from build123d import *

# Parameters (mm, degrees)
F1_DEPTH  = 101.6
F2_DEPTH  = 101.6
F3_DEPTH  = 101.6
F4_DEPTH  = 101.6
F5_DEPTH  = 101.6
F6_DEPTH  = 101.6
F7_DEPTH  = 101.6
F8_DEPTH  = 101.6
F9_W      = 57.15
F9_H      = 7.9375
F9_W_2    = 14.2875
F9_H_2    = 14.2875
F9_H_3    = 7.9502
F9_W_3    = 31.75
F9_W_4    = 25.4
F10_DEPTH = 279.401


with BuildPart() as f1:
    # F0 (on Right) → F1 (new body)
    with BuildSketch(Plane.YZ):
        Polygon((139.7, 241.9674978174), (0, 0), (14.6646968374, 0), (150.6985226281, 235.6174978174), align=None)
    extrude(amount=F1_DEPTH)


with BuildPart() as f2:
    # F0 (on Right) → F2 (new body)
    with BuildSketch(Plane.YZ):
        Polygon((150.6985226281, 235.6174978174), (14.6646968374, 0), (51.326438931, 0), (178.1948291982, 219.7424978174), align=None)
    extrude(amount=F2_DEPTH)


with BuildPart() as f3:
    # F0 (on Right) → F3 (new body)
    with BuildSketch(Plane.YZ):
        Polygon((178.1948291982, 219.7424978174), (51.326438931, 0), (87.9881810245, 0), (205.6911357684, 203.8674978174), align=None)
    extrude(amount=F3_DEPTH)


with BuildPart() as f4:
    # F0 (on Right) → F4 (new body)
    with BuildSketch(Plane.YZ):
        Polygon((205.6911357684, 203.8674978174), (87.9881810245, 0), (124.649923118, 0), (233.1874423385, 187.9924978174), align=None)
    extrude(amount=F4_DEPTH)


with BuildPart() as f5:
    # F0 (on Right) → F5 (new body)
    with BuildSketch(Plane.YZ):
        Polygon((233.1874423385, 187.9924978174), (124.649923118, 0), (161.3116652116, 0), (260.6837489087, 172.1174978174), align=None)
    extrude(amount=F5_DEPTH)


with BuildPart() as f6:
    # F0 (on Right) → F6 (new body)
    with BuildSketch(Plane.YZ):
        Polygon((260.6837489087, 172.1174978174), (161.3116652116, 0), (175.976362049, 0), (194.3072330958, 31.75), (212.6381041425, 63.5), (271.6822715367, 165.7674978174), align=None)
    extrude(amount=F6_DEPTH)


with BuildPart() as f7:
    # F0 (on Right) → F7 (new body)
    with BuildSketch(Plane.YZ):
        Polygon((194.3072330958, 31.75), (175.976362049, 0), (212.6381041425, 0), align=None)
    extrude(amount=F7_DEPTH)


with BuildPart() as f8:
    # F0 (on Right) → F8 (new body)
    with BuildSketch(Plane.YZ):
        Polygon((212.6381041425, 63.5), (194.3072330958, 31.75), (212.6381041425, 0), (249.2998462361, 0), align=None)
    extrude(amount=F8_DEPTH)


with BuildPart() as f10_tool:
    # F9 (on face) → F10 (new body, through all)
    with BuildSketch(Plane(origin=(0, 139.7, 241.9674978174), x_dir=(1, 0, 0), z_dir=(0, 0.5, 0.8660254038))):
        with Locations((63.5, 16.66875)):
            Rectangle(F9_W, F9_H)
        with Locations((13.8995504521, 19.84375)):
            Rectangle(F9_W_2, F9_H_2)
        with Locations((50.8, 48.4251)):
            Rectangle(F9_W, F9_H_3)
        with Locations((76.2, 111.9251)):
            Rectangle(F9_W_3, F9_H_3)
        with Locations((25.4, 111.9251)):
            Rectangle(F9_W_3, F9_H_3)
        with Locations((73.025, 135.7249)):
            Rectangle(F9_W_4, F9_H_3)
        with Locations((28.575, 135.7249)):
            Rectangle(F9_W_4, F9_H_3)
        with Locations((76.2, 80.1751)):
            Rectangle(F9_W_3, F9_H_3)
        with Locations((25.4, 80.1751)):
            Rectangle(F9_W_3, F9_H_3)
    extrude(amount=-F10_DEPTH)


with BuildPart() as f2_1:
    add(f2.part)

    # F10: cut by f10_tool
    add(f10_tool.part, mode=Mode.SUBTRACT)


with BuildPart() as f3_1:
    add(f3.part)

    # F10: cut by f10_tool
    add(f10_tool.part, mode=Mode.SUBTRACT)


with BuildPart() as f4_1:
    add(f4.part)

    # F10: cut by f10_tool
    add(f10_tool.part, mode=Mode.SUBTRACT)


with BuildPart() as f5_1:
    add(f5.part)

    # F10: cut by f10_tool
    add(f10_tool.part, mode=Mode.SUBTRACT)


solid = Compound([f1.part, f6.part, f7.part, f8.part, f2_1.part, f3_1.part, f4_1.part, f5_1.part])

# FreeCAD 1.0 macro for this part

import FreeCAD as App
import Part
import Sketcher
from FreeCAD import Vector
Q = App.Units.Quantity

doc = App.newDocument("Part")
body = doc.addObject("PartDesign::Body", "Body")

# Sketch on YZ plane
sketch1 = body.newObject("Sketcher::SketchObject", "Sketch")
sketch1.AttachmentSupport = (doc.getObject("YZ_Plane"), [""])
sketch1.MapMode = "FlatFace"
sketch1.addGeometry([
    Part.LineSegment(Vector(140, 242, 0), Vector(0, 0, 0)),
    Part.LineSegment(Vector(0, 0, 0), Vector(15, 0, 0)),
    Part.LineSegment(Vector(15, 0, 0), Vector(151, 236, 0)),
    Part.LineSegment(Vector(151, 236, 0), Vector(140, 242, 0)),
], False)
sketch1.addConstraint([
    Sketcher.Constraint("Coincident", 0, 2, 1, 1),
    Sketcher.Constraint("Coincident", 1, 2, 2, 1),
    Sketcher.Constraint("Coincident", 2, 2, 3, 1),
    Sketcher.Constraint("Coincident", 3, 2, 0, 1),
    Sketcher.Constraint("Horizontal", 1),
    Sketcher.Constraint("Coincident", 0, 2, -1, 1),
    Sketcher.Constraint("Parallel", 0, 2),
    Sketcher.Constraint("Perpendicular", 2, 3),
    Sketcher.Constraint("Distance", 0, Q("11 in")),
    Sketcher.Constraint("Angle", 0, Q("-120 deg")),
    Sketcher.Constraint("Distance", 3, Q("0.5 in")),
])
pad1 = body.newObject("PartDesign::Pad", "Pad")
pad1.Profile = sketch1
pad1.Length = Q("4 in")
body2 = doc.addObject("PartDesign::Body", "Body001")

# Sketch on YZ plane
sketch2 = body2.newObject("Sketcher::SketchObject", "Sketch001")
sketch2.AttachmentSupport = (doc.getObject("YZ_Plane001"), [""])
sketch2.MapMode = "FlatFace"
sketch2.addGeometry([
    Part.LineSegment(Vector(151, 236, 0), Vector(15, 0, 0)),
    Part.LineSegment(Vector(15, 0, 0), Vector(51, 0, 0)),
    Part.LineSegment(Vector(51, 0, 0), Vector(178, 220, 0)),
    Part.LineSegment(Vector(178, 220, 0), Vector(151, 236, 0)),
], False)
sketch2.addConstraint([
    Sketcher.Constraint("Coincident", 0, 2, 1, 1),
    Sketcher.Constraint("Coincident", 1, 2, 2, 1),
    Sketcher.Constraint("Coincident", 2, 2, 3, 1),
    Sketcher.Constraint("Coincident", 3, 2, 0, 1),
    Sketcher.Constraint("Horizontal", 1),
    Sketcher.Constraint("PointOnObject", 0, 2, -1),
    Sketcher.Constraint("Parallel", 0, 2),
    Sketcher.Constraint("Perpendicular", 2, 3),
    Sketcher.Constraint("Angle", 0, Q("-120 deg")),
    Sketcher.Constraint("Distance", 3, Q("1.25 in")),
    Sketcher.Constraint("Distance", 0, Q("272.067652 mm")),
    Sketcher.Constraint("DistanceX", -1, 1, 1, 2, Q("51.326439 mm")),
])
pad2 = body2.newObject("PartDesign::Pad", "Pad001")
pad2.Profile = sketch2
pad2.Length = Q("4 in")
body3 = doc.addObject("PartDesign::Body", "Body002")

# Sketch on YZ plane
sketch3 = body3.newObject("Sketcher::SketchObject", "Sketch002")
sketch3.AttachmentSupport = (doc.getObject("YZ_Plane002"), [""])
sketch3.MapMode = "FlatFace"
sketch3.addGeometry([
    Part.LineSegment(Vector(178, 220, 0), Vector(51, 0, 0)),
    Part.LineSegment(Vector(51, 0, 0), Vector(88, 0, 0)),
    Part.LineSegment(Vector(88, 0, 0), Vector(206, 204, 0)),
    Part.LineSegment(Vector(206, 204, 0), Vector(178, 220, 0)),
], False)
sketch3.addConstraint([
    Sketcher.Constraint("Coincident", 0, 2, 1, 1),
    Sketcher.Constraint("Coincident", 1, 2, 2, 1),
    Sketcher.Constraint("Coincident", 2, 2, 3, 1),
    Sketcher.Constraint("Coincident", 3, 2, 0, 1),
    Sketcher.Constraint("Horizontal", 1),
    Sketcher.Constraint("PointOnObject", 0, 2, -1),
    Sketcher.Constraint("Parallel", 0, 2),
    Sketcher.Constraint("Perpendicular", 2, 3),
    Sketcher.Constraint("Angle", 0, Q("-120 deg")),
    Sketcher.Constraint("Distance", 3, Q("1.25 in")),
    Sketcher.Constraint("Distance", 0, Q("253.736781 mm")),
    Sketcher.Constraint("DistanceX", -1, 1, 0, 2, Q("51.326439 mm")),
])
pad3 = body3.newObject("PartDesign::Pad", "Pad002")
pad3.Profile = sketch3
pad3.Length = Q("4 in")
body4 = doc.addObject("PartDesign::Body", "Body003")

# Sketch on YZ plane
sketch4 = body4.newObject("Sketcher::SketchObject", "Sketch003")
sketch4.AttachmentSupport = (doc.getObject("YZ_Plane003"), [""])
sketch4.MapMode = "FlatFace"
sketch4.addGeometry([
    Part.LineSegment(Vector(206, 204, 0), Vector(88, 0, 0)),
    Part.LineSegment(Vector(88, 0, 0), Vector(125, 0, 0)),
    Part.LineSegment(Vector(125, 0, 0), Vector(233, 188, 0)),
    Part.LineSegment(Vector(233, 188, 0), Vector(206, 204, 0)),
], False)
sketch4.addConstraint([
    Sketcher.Constraint("Coincident", 0, 2, 1, 1),
    Sketcher.Constraint("Coincident", 1, 2, 2, 1),
    Sketcher.Constraint("Coincident", 2, 2, 3, 1),
    Sketcher.Constraint("Coincident", 3, 2, 0, 1),
    Sketcher.Constraint("Horizontal", 1),
    Sketcher.Constraint("PointOnObject", 0, 2, -1),
    Sketcher.Constraint("Parallel", 0, 2),
    Sketcher.Constraint("Perpendicular", 2, 3),
    Sketcher.Constraint("Angle", 0, Q("-120 deg")),
    Sketcher.Constraint("Distance", 3, Q("1.25 in")),
    Sketcher.Constraint("Distance", 0, Q("235.405909 mm")),
    Sketcher.Constraint("DistanceX", -1, 1, 0, 2, Q("87.988181 mm")),
])
pad4 = body4.newObject("PartDesign::Pad", "Pad003")
pad4.Profile = sketch4
pad4.Length = Q("4 in")
body5 = doc.addObject("PartDesign::Body", "Body004")

# Sketch on YZ plane
sketch5 = body5.newObject("Sketcher::SketchObject", "Sketch004")
sketch5.AttachmentSupport = (doc.getObject("YZ_Plane004"), [""])
sketch5.MapMode = "FlatFace"
sketch5.addGeometry([
    Part.LineSegment(Vector(233, 188, 0), Vector(125, 0, 0)),
    Part.LineSegment(Vector(125, 0, 0), Vector(161, 0, 0)),
    Part.LineSegment(Vector(161, 0, 0), Vector(261, 172, 0)),
    Part.LineSegment(Vector(261, 172, 0), Vector(233, 188, 0)),
], False)
sketch5.addConstraint([
    Sketcher.Constraint("Coincident", 0, 2, 1, 1),
    Sketcher.Constraint("Coincident", 1, 2, 2, 1),
    Sketcher.Constraint("Coincident", 2, 2, 3, 1),
    Sketcher.Constraint("Coincident", 3, 2, 0, 1),
    Sketcher.Constraint("Horizontal", 1),
    Sketcher.Constraint("PointOnObject", 0, 2, -1),
    Sketcher.Constraint("Parallel", 0, 2),
    Sketcher.Constraint("Perpendicular", 2, 3),
    Sketcher.Constraint("Angle", 0, Q("-120 deg")),
    Sketcher.Constraint("Distance", 3, Q("1.25 in")),
    Sketcher.Constraint("Distance", 0, Q("217.075038 mm")),
    Sketcher.Constraint("DistanceX", -1, 1, 2, 2, Q("260.683749 mm")),
])
pad5 = body5.newObject("PartDesign::Pad", "Pad004")
pad5.Profile = sketch5
pad5.Length = Q("4 in")
body6 = doc.addObject("PartDesign::Body", "Body005")

# Sketch on YZ plane
sketch6 = body6.newObject("Sketcher::SketchObject", "Sketch005")
sketch6.AttachmentSupport = (doc.getObject("YZ_Plane005"), [""])
sketch6.MapMode = "FlatFace"
sketch6.addGeometry([
    Part.LineSegment(Vector(261, 172, 0), Vector(161, 0, 0)),  # 0
    Part.LineSegment(Vector(161, 0, 0), Vector(176, 0, 0)),  # 1
    Part.LineSegment(Vector(176, 0, 0), Vector(194, 32, 0)),  # 2
    Part.LineSegment(Vector(194, 32, 0), Vector(213, 64, 0)),  # 3
    Part.LineSegment(Vector(213, 64, 0), Vector(272, 166, 0)),  # 4
    Part.LineSegment(Vector(272, 166, 0), Vector(261, 172, 0)),  # 5
], False)
sketch6.addConstraint([
    Sketcher.Constraint("Coincident", 0, 2, 1, 1),
    Sketcher.Constraint("Coincident", 1, 2, 2, 1),
    Sketcher.Constraint("Coincident", 2, 2, 3, 1),
    Sketcher.Constraint("Coincident", 3, 2, 4, 1),
    Sketcher.Constraint("Coincident", 4, 2, 5, 1),
    Sketcher.Constraint("Coincident", 5, 2, 0, 1),
    Sketcher.Constraint("Horizontal", 1),
    Sketcher.Constraint("PointOnObject", 0, 2, -1),
    Sketcher.Constraint("Parallel", 0, 2),
    Sketcher.Constraint("Parallel", 2, 3),
    Sketcher.Constraint("Parallel", 3, 4),
    Sketcher.Constraint("Perpendicular", 4, 5),
    Sketcher.Constraint("Equal", 2, 3),
    Sketcher.Constraint("Angle", 0, Q("-120 deg")),
    Sketcher.Constraint("Distance", 5, Q("0.5 in")),
    Sketcher.Constraint("DistanceY", -1, 1, 3, 2, Q("2.5 in")),
    Sketcher.Constraint("DistanceX", -1, 1, 4, 2, Q("271.682272 mm")),
    Sketcher.Constraint("DistanceX", 2, 2, 4, 2, Q("77.375038 mm")),
])
pad6 = body6.newObject("PartDesign::Pad", "Pad005")
pad6.Profile = sketch6
pad6.Length = Q("4 in")
body7 = doc.addObject("PartDesign::Body", "Body006")

# Sketch on YZ plane
sketch7 = body7.newObject("Sketcher::SketchObject", "Sketch006")
sketch7.AttachmentSupport = (doc.getObject("YZ_Plane006"), [""])
sketch7.MapMode = "FlatFace"
sketch7.addGeometry([
    Part.LineSegment(Vector(194, 32, 0), Vector(176, 0, 0)),
    Part.LineSegment(Vector(176, 0, 0), Vector(213, 0, 0)),
    Part.LineSegment(Vector(213, 0, 0), Vector(194, 32, 0)),
], False)
sketch7.addConstraint([
    Sketcher.Constraint("Coincident", 0, 2, 1, 1),
    Sketcher.Constraint("Coincident", 1, 2, 2, 1),
    Sketcher.Constraint("Coincident", 2, 2, 0, 1),
    Sketcher.Constraint("Horizontal", 1),
    Sketcher.Constraint("PointOnObject", 0, 2, -1),
    Sketcher.Constraint("Equal", 0, 2),
    Sketcher.Constraint("Angle", 0, Q("-120 deg")),
    Sketcher.Constraint("DistanceY", -1, 1, 2, 2, Q("1.25 in")),
    Sketcher.Constraint("DistanceX", -1, 1, 0, 2, Q("175.976362 mm")),
])
pad7 = body7.newObject("PartDesign::Pad", "Pad006")
pad7.Profile = sketch7
pad7.Length = Q("4 in")
body8 = doc.addObject("PartDesign::Body", "Body007")

# Sketch on YZ plane
sketch8 = body8.newObject("Sketcher::SketchObject", "Sketch007")
sketch8.AttachmentSupport = (doc.getObject("YZ_Plane007"), [""])
sketch8.MapMode = "FlatFace"
sketch8.addGeometry([
    Part.LineSegment(Vector(213, 64, 0), Vector(194, 32, 0)),
    Part.LineSegment(Vector(194, 32, 0), Vector(213, 0, 0)),
    Part.LineSegment(Vector(213, 0, 0), Vector(249, 0, 0)),
    Part.LineSegment(Vector(249, 0, 0), Vector(213, 64, 0)),
], False)
sketch8.addConstraint([
    Sketcher.Constraint("Coincident", 0, 2, 1, 1),
    Sketcher.Constraint("Coincident", 1, 2, 2, 1),
    Sketcher.Constraint("Coincident", 2, 2, 3, 1),
    Sketcher.Constraint("Coincident", 3, 2, 0, 1),
    Sketcher.Constraint("Horizontal", 2),
    Sketcher.Constraint("PointOnObject", 1, 2, -1),
    Sketcher.Constraint("Parallel", 1, 3),
    Sketcher.Constraint("Vertical", 1, 2, 3, 2),
    Sketcher.Constraint("Equal", 0, 1),
    Sketcher.Constraint("Angle", 0, Q("-120 deg")),
    Sketcher.Constraint("DistanceY", -1, 1, 3, 2, Q("2.5 in")),
    Sketcher.Constraint("DistanceX", -1, 1, 0, 2, Q("194.307233 mm")),
])
pad8 = body8.newObject("PartDesign::Pad", "Pad007")
pad8.Profile = sketch8
pad8.Length = Q("4 in")
body9 = doc.addObject("PartDesign::Body", "Body008")
body9.AllowCompound = True

# Sketch on an angled plane
sketch9 = body9.newObject("Sketcher::SketchObject", "Sketch008")
sketch9.Placement = App.Placement(Vector(0, 139.7, 241.967498), App.Rotation(Vector(1, 0, 0), Vector(0, 0.866025404, -0.5), Vector(0, 0.5, 0.866025404), "ZXY"))
sketch9.addGeometry([
    Part.LineSegment(Vector(35, 21, 0), Vector(35, 13, 0)),  # 0
    Part.LineSegment(Vector(35, 13, 0), Vector(92, 13, 0)),  # 1
    Part.LineSegment(Vector(92, 13, 0), Vector(92, 21, 0)),  # 2
    Part.LineSegment(Vector(92, 21, 0), Vector(35, 21, 0)),  # 3
    Part.LineSegment(Vector(7, 27, 0), Vector(7, 13, 0)),  # 4
    Part.LineSegment(Vector(7, 13, 0), Vector(21, 13, 0)),  # 5
    Part.LineSegment(Vector(21, 13, 0), Vector(21, 27, 0)),  # 6
    Part.LineSegment(Vector(21, 27, 0), Vector(7, 27, 0)),  # 7
    Part.LineSegment(Vector(22, 52, 0), Vector(22, 44, 0)),  # 8
    Part.LineSegment(Vector(22, 44, 0), Vector(79, 44, 0)),  # 9
    Part.LineSegment(Vector(79, 44, 0), Vector(79, 52, 0)),  # 10
    Part.LineSegment(Vector(79, 52, 0), Vector(22, 52, 0)),  # 11
    Part.LineSegment(Vector(60, 116, 0), Vector(60, 108, 0)),  # 12
    Part.LineSegment(Vector(60, 108, 0), Vector(92, 108, 0)),  # 13
    Part.LineSegment(Vector(92, 108, 0), Vector(92, 116, 0)),  # 14
    Part.LineSegment(Vector(92, 116, 0), Vector(60, 116, 0)),  # 15
    Part.LineSegment(Vector(10, 116, 0), Vector(10, 108, 0)),  # 16
    Part.LineSegment(Vector(10, 108, 0), Vector(41, 108, 0)),  # 17
    Part.LineSegment(Vector(41, 108, 0), Vector(41, 116, 0)),  # 18
    Part.LineSegment(Vector(41, 116, 0), Vector(10, 116, 0)),  # 19
    Part.LineSegment(Vector(60, 140, 0), Vector(60, 132, 0)),  # 20
    Part.LineSegment(Vector(60, 132, 0), Vector(86, 132, 0)),  # 21
    Part.LineSegment(Vector(86, 132, 0), Vector(86, 140, 0)),  # 22
    Part.LineSegment(Vector(86, 140, 0), Vector(60, 140, 0)),  # 23
    Part.LineSegment(Vector(16, 140, 0), Vector(16, 132, 0)),  # 24
    Part.LineSegment(Vector(16, 132, 0), Vector(41, 132, 0)),  # 25
    Part.LineSegment(Vector(41, 132, 0), Vector(41, 140, 0)),  # 26
    Part.LineSegment(Vector(41, 140, 0), Vector(16, 140, 0)),  # 27
    Part.LineSegment(Vector(60, 84, 0), Vector(60, 76, 0)),  # 28
    Part.LineSegment(Vector(60, 76, 0), Vector(92, 76, 0)),  # 29
    Part.LineSegment(Vector(92, 76, 0), Vector(92, 84, 0)),  # 30
    Part.LineSegment(Vector(92, 84, 0), Vector(60, 84, 0)),  # 31
    Part.LineSegment(Vector(10, 84, 0), Vector(10, 76, 0)),  # 32
    Part.LineSegment(Vector(10, 76, 0), Vector(41, 76, 0)),  # 33
    Part.LineSegment(Vector(41, 76, 0), Vector(41, 84, 0)),  # 34
    Part.LineSegment(Vector(41, 84, 0), Vector(10, 84, 0)),  # 35
], False)
sketch9.addConstraint([
    Sketcher.Constraint("Coincident", 0, 2, 1, 1),
    Sketcher.Constraint("Coincident", 1, 2, 2, 1),
    Sketcher.Constraint("Coincident", 2, 2, 3, 1),
    Sketcher.Constraint("Coincident", 3, 2, 0, 1),
    Sketcher.Constraint("Coincident", 4, 2, 5, 1),
    Sketcher.Constraint("Coincident", 5, 2, 6, 1),
    Sketcher.Constraint("Coincident", 6, 2, 7, 1),
    Sketcher.Constraint("Coincident", 7, 2, 4, 1),
    Sketcher.Constraint("Coincident", 8, 2, 9, 1),
    Sketcher.Constraint("Coincident", 9, 2, 10, 1),
    Sketcher.Constraint("Coincident", 10, 2, 11, 1),
    Sketcher.Constraint("Coincident", 11, 2, 8, 1),
    Sketcher.Constraint("Coincident", 12, 2, 13, 1),
    Sketcher.Constraint("Coincident", 13, 2, 14, 1),
    Sketcher.Constraint("Coincident", 14, 2, 15, 1),
    Sketcher.Constraint("Coincident", 15, 2, 12, 1),
    Sketcher.Constraint("Coincident", 16, 2, 17, 1),
    Sketcher.Constraint("Coincident", 17, 2, 18, 1),
    Sketcher.Constraint("Coincident", 18, 2, 19, 1),
    Sketcher.Constraint("Coincident", 19, 2, 16, 1),
    Sketcher.Constraint("Coincident", 20, 2, 21, 1),
    Sketcher.Constraint("Coincident", 21, 2, 22, 1),
    Sketcher.Constraint("Coincident", 22, 2, 23, 1),
    Sketcher.Constraint("Coincident", 23, 2, 20, 1),
    Sketcher.Constraint("Coincident", 24, 2, 25, 1),
    Sketcher.Constraint("Coincident", 25, 2, 26, 1),
    Sketcher.Constraint("Coincident", 26, 2, 27, 1),
    Sketcher.Constraint("Coincident", 27, 2, 24, 1),
    Sketcher.Constraint("Coincident", 28, 2, 29, 1),
    Sketcher.Constraint("Coincident", 29, 2, 30, 1),
    Sketcher.Constraint("Coincident", 30, 2, 31, 1),
    Sketcher.Constraint("Coincident", 31, 2, 28, 1),
    Sketcher.Constraint("Coincident", 32, 2, 33, 1),
    Sketcher.Constraint("Coincident", 33, 2, 34, 1),
    Sketcher.Constraint("Coincident", 34, 2, 35, 1),
    Sketcher.Constraint("Coincident", 35, 2, 32, 1),
    Sketcher.Constraint("Vertical", 0),
    Sketcher.Constraint("Horizontal", 1),
    Sketcher.Constraint("Vertical", 2),
    Sketcher.Constraint("Horizontal", 3),
    Sketcher.Constraint("Vertical", 4),
    Sketcher.Constraint("Horizontal", 5),
    Sketcher.Constraint("Vertical", 6),
    Sketcher.Constraint("Horizontal", 7),
    Sketcher.Constraint("Vertical", 8),
    Sketcher.Constraint("Horizontal", 9),
    Sketcher.Constraint("Vertical", 10),
    Sketcher.Constraint("Horizontal", 11),
    Sketcher.Constraint("Vertical", 12),
    Sketcher.Constraint("Horizontal", 13),
    Sketcher.Constraint("Vertical", 14),
    Sketcher.Constraint("Horizontal", 15),
    Sketcher.Constraint("Vertical", 16),
    Sketcher.Constraint("Horizontal", 17),
    Sketcher.Constraint("Vertical", 18),
    Sketcher.Constraint("Horizontal", 19),
    Sketcher.Constraint("Vertical", 20),
    Sketcher.Constraint("Horizontal", 21),
    Sketcher.Constraint("Vertical", 22),
    Sketcher.Constraint("Horizontal", 23),
    Sketcher.Constraint("Vertical", 24),
    Sketcher.Constraint("Horizontal", 25),
    Sketcher.Constraint("Vertical", 26),
    Sketcher.Constraint("Horizontal", 27),
    Sketcher.Constraint("Vertical", 28),
    Sketcher.Constraint("Horizontal", 29),
    Sketcher.Constraint("Vertical", 30),
    Sketcher.Constraint("Horizontal", 31),
    Sketcher.Constraint("Vertical", 32),
    Sketcher.Constraint("Horizontal", 33),
    Sketcher.Constraint("Vertical", 34),
    Sketcher.Constraint("Horizontal", 35),
    Sketcher.Constraint("Horizontal", 1, 2, 4, 2),
    Sketcher.Constraint("Horizontal", 13, 2, 16, 2),
    Sketcher.Constraint("Horizontal", 15, 2, 18, 2),
    Sketcher.Constraint("Horizontal", 21, 2, 24, 2),
    Sketcher.Constraint("Horizontal", 23, 2, 26, 2),
    Sketcher.Constraint("Horizontal", 29, 2, 32, 2),
    Sketcher.Constraint("Horizontal", 31, 2, 34, 2),
    Sketcher.Constraint("Vertical", 2, 2, 13, 2),
    Sketcher.Constraint("Vertical", 15, 2, 20, 2),
    Sketcher.Constraint("Vertical", 18, 2, 25, 2),
    Sketcher.Constraint("Vertical", 23, 2, 28, 2),
    Sketcher.Constraint("Vertical", 14, 2, 29, 2),
    Sketcher.Constraint("Vertical", 19, 2, 32, 2),
    Sketcher.Constraint("Vertical", 26, 2, 33, 2),
    Sketcher.Constraint("Equal", 3, 9),
    Sketcher.Constraint("Equal", 15, 17),
    Sketcher.Constraint("Equal", 23, 25),
    Sketcher.Constraint("Equal", 7, 4),
    Sketcher.Constraint("Equal", 10, 12),
    Sketcher.Constraint("Equal", 18, 20),
    Sketcher.Constraint("Equal", 26, 28),
    Sketcher.Constraint("DistanceX", 21, 1, 21, 2, Q("1 in")),
    Sketcher.Constraint("DistanceY", -1, 1, 28, 2, Q("3 in")),
    Sketcher.Constraint("DistanceX", 16, 2, 12, 2, Q("2 in")),
    Sketcher.Constraint("DistanceX", 1, 1, 1, 2, Q("2.25 in")),
    Sketcher.Constraint("DistanceX", 13, 1, 13, 2, Q("1.25 in")),
    Sketcher.Constraint("DistanceY", -1, 1, 0, 2, Q("0.5 in")),
    Sketcher.Constraint("DistanceY", -1, 1, 22, 2, Q("5.5 in")),
    Sketcher.Constraint("DistanceX", 8, 2, 3, 2, Q("0.5 in")),
    Sketcher.Constraint("DistanceY", 9, 2, 12, 2, Q("2.5 in")),
    Sketcher.Constraint("DistanceX", 5, 1, 5, 2, Q("0.5625 in")),
    Sketcher.Constraint("DistanceY", 0, 2, 0, 1, Q("0.3125 in")),
    Sketcher.Constraint("DistanceY", 8, 2, 8, 1, Q("0.313 in")),
    Sketcher.Constraint("DistanceY", -1, 1, 8, 2, Q("1.75 in")),
    Sketcher.Constraint("DistanceX", -1, 1, 0, 2, Q("1.375 in")),
    Sketcher.Constraint("DistanceX", -1, 1, 4, 2, Q("6.7558 mm")),
])
pad9 = body9.newObject("PartDesign::Pad", "Pad008")
pad9.Profile = sketch9
pad9.Length = 279.401
pad9.Reversed = True
doc.recompute()

body10 = doc.addObject("PartDesign::Body", "Body009")
body10.BaseFeature = body9
boolean = body2.newObject("PartDesign::Boolean", "Boolean")
boolean.Type = "Cut"
boolean.addObjects([body10])
doc.recompute()

body11 = doc.addObject("PartDesign::Body", "Body010")
body11.BaseFeature = body9
boolean2 = body3.newObject("PartDesign::Boolean", "Boolean001")
boolean2.Type = "Cut"
boolean2.addObjects([body11])
doc.recompute()

body12 = doc.addObject("PartDesign::Body", "Body011")
body12.BaseFeature = body9
boolean3 = body4.newObject("PartDesign::Boolean", "Boolean002")
boolean3.Type = "Cut"
boolean3.addObjects([body12])
doc.recompute()

boolean4 = body5.newObject("PartDesign::Boolean", "Boolean003")
boolean4.Type = "Cut"
boolean4.addObjects([body9])

doc.recompute()
